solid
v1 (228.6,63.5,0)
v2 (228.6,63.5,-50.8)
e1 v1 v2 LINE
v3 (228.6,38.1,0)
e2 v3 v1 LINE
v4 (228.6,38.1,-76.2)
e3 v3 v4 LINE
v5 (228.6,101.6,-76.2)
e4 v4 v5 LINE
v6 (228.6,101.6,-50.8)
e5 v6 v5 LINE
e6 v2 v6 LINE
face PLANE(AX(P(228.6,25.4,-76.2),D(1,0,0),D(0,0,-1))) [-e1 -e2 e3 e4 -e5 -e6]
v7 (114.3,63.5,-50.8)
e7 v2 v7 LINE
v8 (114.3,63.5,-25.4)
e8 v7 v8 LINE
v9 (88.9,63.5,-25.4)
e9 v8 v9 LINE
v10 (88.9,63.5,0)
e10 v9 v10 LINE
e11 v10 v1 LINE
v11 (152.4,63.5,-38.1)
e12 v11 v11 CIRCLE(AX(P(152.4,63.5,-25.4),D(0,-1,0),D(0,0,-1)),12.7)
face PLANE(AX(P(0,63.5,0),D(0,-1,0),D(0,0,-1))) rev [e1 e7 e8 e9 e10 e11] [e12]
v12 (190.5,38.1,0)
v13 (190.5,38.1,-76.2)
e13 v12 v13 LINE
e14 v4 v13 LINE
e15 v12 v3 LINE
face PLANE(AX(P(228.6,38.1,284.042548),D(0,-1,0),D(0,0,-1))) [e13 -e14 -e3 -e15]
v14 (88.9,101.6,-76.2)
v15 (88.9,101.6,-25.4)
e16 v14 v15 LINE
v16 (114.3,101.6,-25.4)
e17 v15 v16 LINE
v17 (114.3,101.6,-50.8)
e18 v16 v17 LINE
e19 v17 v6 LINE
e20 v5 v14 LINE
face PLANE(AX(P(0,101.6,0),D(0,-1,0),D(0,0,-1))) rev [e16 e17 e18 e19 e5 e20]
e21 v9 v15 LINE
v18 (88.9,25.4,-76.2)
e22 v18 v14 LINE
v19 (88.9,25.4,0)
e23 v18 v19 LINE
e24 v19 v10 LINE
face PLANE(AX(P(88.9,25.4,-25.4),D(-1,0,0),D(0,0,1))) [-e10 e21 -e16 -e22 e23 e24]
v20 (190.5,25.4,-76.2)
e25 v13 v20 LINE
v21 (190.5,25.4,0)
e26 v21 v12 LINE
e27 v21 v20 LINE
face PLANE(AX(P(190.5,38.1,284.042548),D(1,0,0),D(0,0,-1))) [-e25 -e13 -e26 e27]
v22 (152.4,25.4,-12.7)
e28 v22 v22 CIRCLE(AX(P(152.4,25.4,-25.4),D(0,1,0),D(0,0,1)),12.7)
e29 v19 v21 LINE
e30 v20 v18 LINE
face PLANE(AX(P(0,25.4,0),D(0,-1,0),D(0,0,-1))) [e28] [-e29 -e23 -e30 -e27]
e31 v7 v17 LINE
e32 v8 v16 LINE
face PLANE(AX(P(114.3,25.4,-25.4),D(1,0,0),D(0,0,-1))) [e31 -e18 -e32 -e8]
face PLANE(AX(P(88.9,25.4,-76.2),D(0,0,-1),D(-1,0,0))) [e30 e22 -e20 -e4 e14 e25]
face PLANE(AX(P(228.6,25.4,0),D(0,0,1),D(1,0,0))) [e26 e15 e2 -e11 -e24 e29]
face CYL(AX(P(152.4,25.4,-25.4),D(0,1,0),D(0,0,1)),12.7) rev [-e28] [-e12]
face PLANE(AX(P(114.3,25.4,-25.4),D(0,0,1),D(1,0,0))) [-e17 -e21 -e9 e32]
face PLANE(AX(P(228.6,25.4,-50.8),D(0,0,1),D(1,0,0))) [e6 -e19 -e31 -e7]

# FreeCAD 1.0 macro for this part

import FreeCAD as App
import Part
import Sketcher

V = App.Vector
Q = App.Units.Quantity

doc = App.newDocument("Part")
body = doc.addObject("PartDesign::Body", "Body")

sketch1 = body.newObject("Sketcher::SketchObject", "Sketch")
sketch1.AttachmentSupport = (doc.getObject("XZ_Plane"), [""])
sketch1.MapMode = "FlatFace"
sketch1.AttachmentOffset = App.Placement(V(0, 0, -4 * 25.4), App.Rotation())
sketch1.addGeometry([
    Part.LineSegment(V(88.9, -76.2, 0), V(88.9, -25.4, 0)),
    Part.LineSegment(V(88.9, -25.4, 0), V(114.3, -25.4, 0)),
    Part.LineSegment(V(114.3, -25.4, 0), V(114.3, -50.8, 0)),
    Part.LineSegment(V(114.3, -50.8, 0), V(228.6, -50.8, 0)),
    Part.LineSegment(V(228.6, -50.8, 0), V(228.6, -76.2, 0)),
    Part.LineSegment(V(228.6, -76.2, 0), V(88.9, -76.2, 0)),
], False)
sketch1.addConstraint([
    Sketcher.Constraint("Coincident", 0, 2, 1, 1),
    Sketcher.Constraint("Coincident", 1, 2, 2, 1),
    Sketcher.Constraint("Coincident", 2, 2, 3, 1),
    Sketcher.Constraint("Coincident", 3, 2, 4, 1),
    Sketcher.Constraint("Coincident", 4, 2, 5, 1),
    Sketcher.Constraint("Coincident", 5, 2, 0, 1),
    Sketcher.Constraint("Vertical", 0),
    Sketcher.Constraint("Horizontal", 1),
    Sketcher.Constraint("Vertical", 2),
    Sketcher.Constraint("Horizontal", 3),
    Sketcher.Constraint("Vertical", 4),
    Sketcher.Constraint("Horizontal", 5),
    Sketcher.Constraint("Equal", 1, 2),
    Sketcher.Constraint("Equal", 2, 4),
    Sketcher.Constraint("DistanceX", 1, 1, 1, 2, Q("1 in")),
    Sketcher.Constraint("DistanceX", 3, 1, 3, 2, Q("4.5 in")),
    Sketcher.Constraint("DistanceY", 0, 2, -1, 1, Q("1 in")),
    Sketcher.Constraint("DistanceX", -1, 1, 3, 2, Q("9 in")),
])
pad1 = body.newObject("PartDesign::Pad", "Pad")
pad1.Profile = sketch1
pad1.Length = Q("3 in")

sketch2 = body.newObject("Sketcher::SketchObject", "Sketch001")
sketch2.AttachmentSupport = (doc.getObject("XZ_Plane"), [""])
sketch2.MapMode = "FlatFace"
sketch2.AttachmentOffset = App.Placement(V(0, 0, -2.5 * 25.4), App.Rotation())
sketch2.addGeometry([
    Part.LineSegment(V(88.9, 0, 0), V(228.6, 0, 0)),
    Part.LineSegment(V(228.6, 0, 0), V(228.6, -50.8, 0)),
    Part.LineSegment(V(228.6, -50.8, 0), V(114.3, -50.8, 0)),
    Part.LineSegment(V(114.3, -50.8, 0), V(114.3, -25.4, 0)),
    Part.LineSegment(V(114.3, -25.4, 0), V(88.9, -25.4, 0)),
    Part.LineSegment(V(88.9, -25.4, 0), V(88.9, 0, 0)),
], False)
sketch2.addConstraint([
    Sketcher.Constraint("Coincident", 0, 2, 1, 1),
    Sketcher.Constraint("Coincident", 1, 2, 2, 1),
    Sketcher.Constraint("Coincident", 2, 2, 3, 1),
    Sketcher.Constraint("Coincident", 3, 2, 4, 1),
    Sketcher.Constraint("Coincident", 4, 2, 5, 1),
    Sketcher.Constraint("Coincident", 5, 2, 0, 1),
    Sketcher.Constraint("Horizontal", 0),
    Sketcher.Constraint("Vertical", 1),
    Sketcher.Constraint("Horizontal", 2),
    Sketcher.Constraint("Vertical", 3),
    Sketcher.Constraint("Horizontal", 4),
    Sketcher.Constraint("Vertical", 5),
    Sketcher.Constraint("PointOnObject", 0, 2, -1),
    Sketcher.Constraint("Equal", 4, 3),
    Sketcher.Constraint("Equal", 3, 5),
    Sketcher.Constraint("DistanceX", 4, 2, 4, 1, Q("1 in")),
    Sketcher.Constraint("DistanceX", 0, 1, 0, 2, Q("5.5 in")),
    Sketcher.Constraint("DistanceX", -1, 1, 0, 2, Q("9 in")),
])
pad2 = body.newObject("PartDesign::Pad", "Pad001")
pad2.Profile = sketch2
pad2.Length = Q("1.5 in")

sketch3 = body.newObject("Sketcher::SketchObject", "Sketch002")
sketch3.AttachmentSupport = (doc.getObject("XZ_Plane"), [""])
sketch3.MapMode = "FlatFace"
sketch3.AttachmentOffset = App.Placement(V(0, 0, -4.5 * 25.4), App.Rotation())
sketch3.addGeometry(Part.Circle(V(152.4, -25.4, 0), V(0, 0, 1), 12.7), False)
sketch3.addConstraint([
    Sketcher.Constraint("Diameter", 0, Q("1 in")),
    Sketcher.Constraint("DistanceX", -1, 1, 0, 3, Q("6 in")),
    Sketcher.Constraint("DistanceY", 0, 3, -1, 1, Q("1 in")),
])
pocket1 = body.newObject("PartDesign::Pocket", "Pocket")
pocket1.Profile = sketch3
pocket1.Type = "ThroughAll"
pocket1.Reversed = True

sketch4 = body.newObject("Sketcher::SketchObject", "Sketch003")
sketch4.AttachmentSupport = (doc.getObject("XY_Plane"), [""])
sketch4.MapMode = "FlatFace"
sketch4.addGeometry([
    Part.LineSegment(V(545.509368, 38.1, 0), V(190.5, 38.1, 0)),
    Part.LineSegment(V(190.5, 38.1, 0), V(190.5, -291.509368, 0)),
    Part.LineSegment(V(190.5, -291.509368, 0), V(621.753014, -755.995134, 0)),
    Part.LineSegment(V(621.753014, -755.995134, 0), V(976.762382, -426.385767, 0)),
    Part.LineSegment(V(976.762382, -426.385767, 0), V(545.509368, 38.1, 0)),
], False)
sketch4.addConstraint([
    Sketcher.Constraint("Coincident", 0, 2, 1, 1),
    Sketcher.Constraint("Coincident", 1, 2, 2, 1),
    Sketcher.Constraint("Coincident", 2, 2, 3, 1),
    Sketcher.Constraint("Coincident", 3, 2, 4, 1),
    Sketcher.Constraint("Coincident", 4, 2, 0, 1),
    Sketcher.Constraint("Horizontal", 0),
    Sketcher.Constraint("Vertical", 1),
    Sketcher.Constraint("Perpendicular", 2, 3),
    Sketcher.Constraint("Perpendicular", 3, 4),
    Sketcher.Constraint("Equal", 2, 4),
    Sketcher.Constraint("DistanceX", -1, 1, 0, 2, Q("7.5 in")),
    Sketcher.Constraint("DistanceY", -1, 1, 0, 2, Q("1.5 in")),
    Sketcher.Constraint("DistanceY", 3, 2, 1, 2, Q("134.876399 mm")),
    Sketcher.Constraint("Distance", 3, Q("484.431612 mm")),
    Sketcher.Constraint("DistanceX", 0, 2, 0, 1, Q("355.009368 mm")),
])
pocket2 = body.newObject("PartDesign::Pocket", "Pocket001")
pocket2.Profile = sketch4
pocket2.Type = "ThroughAll"
pocket2.Midplane = True

doc.recompute()
